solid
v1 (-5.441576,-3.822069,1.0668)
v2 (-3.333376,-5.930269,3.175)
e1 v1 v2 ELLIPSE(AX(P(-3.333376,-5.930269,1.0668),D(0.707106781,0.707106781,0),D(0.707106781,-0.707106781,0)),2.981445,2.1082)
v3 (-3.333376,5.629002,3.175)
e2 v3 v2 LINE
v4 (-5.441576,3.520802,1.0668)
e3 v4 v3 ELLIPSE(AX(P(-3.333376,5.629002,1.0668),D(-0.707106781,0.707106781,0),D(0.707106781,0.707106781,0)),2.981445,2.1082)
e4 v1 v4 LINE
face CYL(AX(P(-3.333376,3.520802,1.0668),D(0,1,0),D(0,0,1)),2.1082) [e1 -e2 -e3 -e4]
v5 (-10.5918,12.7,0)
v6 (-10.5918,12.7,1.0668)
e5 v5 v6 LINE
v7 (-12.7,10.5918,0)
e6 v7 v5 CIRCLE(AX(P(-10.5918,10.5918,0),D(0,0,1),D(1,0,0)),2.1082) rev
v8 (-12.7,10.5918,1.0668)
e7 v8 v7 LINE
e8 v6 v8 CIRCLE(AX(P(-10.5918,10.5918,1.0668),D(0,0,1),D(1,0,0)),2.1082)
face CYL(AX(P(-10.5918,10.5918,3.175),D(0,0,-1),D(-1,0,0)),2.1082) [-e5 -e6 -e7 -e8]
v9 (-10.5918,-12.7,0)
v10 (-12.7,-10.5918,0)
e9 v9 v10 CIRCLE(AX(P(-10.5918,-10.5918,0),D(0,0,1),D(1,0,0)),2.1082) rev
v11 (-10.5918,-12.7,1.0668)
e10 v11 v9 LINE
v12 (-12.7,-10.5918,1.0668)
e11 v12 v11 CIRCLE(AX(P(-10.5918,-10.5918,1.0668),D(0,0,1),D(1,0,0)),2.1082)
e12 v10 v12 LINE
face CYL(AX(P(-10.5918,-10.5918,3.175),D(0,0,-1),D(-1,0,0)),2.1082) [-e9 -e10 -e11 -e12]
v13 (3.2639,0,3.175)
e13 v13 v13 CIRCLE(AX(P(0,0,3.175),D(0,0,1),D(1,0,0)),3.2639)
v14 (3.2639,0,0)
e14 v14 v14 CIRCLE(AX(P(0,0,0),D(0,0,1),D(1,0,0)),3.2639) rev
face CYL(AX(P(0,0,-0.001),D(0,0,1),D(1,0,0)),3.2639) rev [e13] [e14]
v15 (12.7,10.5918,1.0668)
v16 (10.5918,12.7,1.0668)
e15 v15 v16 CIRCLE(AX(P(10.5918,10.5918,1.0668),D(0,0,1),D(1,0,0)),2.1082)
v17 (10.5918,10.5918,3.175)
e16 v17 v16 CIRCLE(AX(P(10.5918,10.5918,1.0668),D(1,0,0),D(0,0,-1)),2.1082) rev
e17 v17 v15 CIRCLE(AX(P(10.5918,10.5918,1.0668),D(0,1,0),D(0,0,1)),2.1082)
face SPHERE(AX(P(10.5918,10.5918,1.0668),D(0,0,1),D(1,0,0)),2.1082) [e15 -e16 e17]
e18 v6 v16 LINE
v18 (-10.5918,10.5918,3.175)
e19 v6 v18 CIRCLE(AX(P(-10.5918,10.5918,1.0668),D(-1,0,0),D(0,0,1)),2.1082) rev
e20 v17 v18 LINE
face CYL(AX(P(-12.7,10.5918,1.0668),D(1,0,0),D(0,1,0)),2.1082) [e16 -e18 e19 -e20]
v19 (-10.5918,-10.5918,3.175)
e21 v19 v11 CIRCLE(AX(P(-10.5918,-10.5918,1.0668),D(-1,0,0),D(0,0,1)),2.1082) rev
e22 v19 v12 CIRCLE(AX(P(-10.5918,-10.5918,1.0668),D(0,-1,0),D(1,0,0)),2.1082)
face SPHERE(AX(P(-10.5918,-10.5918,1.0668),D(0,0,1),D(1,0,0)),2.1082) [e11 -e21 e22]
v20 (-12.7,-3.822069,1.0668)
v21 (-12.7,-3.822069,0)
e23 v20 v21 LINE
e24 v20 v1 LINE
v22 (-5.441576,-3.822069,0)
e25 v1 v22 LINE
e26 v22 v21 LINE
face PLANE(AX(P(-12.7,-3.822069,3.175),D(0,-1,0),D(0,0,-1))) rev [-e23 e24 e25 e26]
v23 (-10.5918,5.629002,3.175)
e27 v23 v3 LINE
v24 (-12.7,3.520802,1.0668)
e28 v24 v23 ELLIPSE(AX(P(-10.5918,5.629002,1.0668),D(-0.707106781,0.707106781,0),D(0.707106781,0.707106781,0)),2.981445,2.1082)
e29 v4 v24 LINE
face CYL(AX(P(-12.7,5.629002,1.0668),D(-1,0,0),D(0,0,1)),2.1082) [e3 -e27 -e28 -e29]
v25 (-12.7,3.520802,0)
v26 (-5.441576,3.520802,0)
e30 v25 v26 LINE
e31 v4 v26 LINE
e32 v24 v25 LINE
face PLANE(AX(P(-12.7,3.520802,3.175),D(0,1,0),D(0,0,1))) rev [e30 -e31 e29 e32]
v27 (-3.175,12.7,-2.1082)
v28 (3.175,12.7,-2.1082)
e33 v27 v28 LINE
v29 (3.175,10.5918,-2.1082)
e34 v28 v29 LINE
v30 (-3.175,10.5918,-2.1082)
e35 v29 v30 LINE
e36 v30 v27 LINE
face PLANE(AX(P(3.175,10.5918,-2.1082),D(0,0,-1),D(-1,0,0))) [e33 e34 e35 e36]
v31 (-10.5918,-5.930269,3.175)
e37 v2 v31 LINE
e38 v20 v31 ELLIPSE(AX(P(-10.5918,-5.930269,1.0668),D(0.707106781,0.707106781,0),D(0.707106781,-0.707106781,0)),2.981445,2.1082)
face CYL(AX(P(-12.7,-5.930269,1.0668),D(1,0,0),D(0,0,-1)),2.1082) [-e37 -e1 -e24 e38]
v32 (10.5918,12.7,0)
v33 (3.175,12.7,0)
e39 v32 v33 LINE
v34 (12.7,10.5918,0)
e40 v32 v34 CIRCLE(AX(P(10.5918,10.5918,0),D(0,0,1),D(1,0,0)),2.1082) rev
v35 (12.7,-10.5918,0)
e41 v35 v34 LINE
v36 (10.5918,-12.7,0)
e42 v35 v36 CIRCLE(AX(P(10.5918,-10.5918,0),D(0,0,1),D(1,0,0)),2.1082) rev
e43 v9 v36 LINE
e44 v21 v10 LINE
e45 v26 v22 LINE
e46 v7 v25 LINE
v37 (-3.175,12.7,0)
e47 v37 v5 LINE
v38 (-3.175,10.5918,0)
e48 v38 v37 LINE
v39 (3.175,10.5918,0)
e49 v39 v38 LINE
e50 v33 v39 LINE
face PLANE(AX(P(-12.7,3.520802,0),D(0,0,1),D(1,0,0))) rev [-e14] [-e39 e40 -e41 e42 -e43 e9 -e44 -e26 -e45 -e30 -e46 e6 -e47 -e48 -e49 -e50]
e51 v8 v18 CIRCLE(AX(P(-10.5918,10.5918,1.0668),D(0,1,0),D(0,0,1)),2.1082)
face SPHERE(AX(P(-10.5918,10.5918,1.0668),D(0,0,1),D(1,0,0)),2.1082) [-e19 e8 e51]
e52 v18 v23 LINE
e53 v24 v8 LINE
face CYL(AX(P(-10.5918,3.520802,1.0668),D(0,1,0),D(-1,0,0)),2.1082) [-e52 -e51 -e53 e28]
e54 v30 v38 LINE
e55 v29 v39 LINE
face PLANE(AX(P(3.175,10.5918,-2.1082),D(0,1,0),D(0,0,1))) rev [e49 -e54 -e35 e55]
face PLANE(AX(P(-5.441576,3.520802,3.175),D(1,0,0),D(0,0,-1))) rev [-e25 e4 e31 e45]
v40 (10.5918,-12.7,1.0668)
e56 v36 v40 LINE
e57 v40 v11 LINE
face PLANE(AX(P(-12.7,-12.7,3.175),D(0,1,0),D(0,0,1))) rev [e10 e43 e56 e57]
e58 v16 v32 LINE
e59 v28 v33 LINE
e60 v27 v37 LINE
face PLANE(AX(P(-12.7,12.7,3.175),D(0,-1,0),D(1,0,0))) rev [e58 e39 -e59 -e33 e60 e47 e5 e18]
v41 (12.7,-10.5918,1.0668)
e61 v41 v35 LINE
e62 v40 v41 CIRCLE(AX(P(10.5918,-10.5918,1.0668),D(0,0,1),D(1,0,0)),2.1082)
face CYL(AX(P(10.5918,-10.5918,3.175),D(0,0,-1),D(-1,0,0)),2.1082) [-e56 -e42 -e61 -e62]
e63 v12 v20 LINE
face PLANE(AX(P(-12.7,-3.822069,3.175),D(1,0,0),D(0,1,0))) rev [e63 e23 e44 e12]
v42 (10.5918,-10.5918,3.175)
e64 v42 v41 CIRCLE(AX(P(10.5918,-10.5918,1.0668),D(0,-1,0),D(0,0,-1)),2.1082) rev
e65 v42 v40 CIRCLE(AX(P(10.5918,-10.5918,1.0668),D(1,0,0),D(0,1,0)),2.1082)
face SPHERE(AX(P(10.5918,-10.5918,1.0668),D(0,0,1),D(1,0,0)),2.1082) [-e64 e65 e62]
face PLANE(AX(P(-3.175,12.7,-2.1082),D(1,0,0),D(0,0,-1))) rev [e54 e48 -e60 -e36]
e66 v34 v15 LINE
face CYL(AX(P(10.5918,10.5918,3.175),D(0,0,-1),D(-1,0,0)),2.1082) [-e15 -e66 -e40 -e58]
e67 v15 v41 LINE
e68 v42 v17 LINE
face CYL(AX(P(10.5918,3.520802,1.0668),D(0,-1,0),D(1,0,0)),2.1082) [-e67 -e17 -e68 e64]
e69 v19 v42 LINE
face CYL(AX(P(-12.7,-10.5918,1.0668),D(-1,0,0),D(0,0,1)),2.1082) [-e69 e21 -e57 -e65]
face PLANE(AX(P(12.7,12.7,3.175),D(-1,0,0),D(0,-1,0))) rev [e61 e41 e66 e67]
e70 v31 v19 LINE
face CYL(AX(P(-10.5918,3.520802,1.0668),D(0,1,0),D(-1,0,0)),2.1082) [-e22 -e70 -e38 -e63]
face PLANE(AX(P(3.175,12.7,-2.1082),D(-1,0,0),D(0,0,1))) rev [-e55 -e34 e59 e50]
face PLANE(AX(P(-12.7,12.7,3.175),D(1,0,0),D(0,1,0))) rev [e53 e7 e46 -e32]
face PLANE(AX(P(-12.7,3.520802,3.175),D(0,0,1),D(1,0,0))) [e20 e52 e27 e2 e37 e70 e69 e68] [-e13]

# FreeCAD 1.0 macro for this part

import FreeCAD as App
import Part
import Sketcher
from FreeCAD import Vector
Q = App.Units.Quantity


def edges_at(feature, points):
    """Names of the edges that pass closest to the given points."""
    edges = feature.Shape.Edges
    near = lambda p: min(range(len(edges)), key=lambda i: edges[i].distToShape(Part.Vertex(*p))[0])
    return sorted({f"Edge{near(p) + 1}" for p in points})

doc = App.newDocument("Part")
params = doc.addObject("Spreadsheet::Sheet", "Params")
for row, (alias, value) in enumerate([
    ("sketch1_width", "1 in"),
    ("pad1_length", "0.125 in"),
    ("fillet_radius", "0.083 in"),
    ("sketch2_diameter", "0.257 in"),
    ("sketch3_width", "0.25 in"),
    ("sketch3_height", "0.083 in"),
    ("pad2_length", "0.083 in"),
], start=1):
    params.set(f"A{row}", alias)
    params.set(f"B{row}", "=" + value)
    params.setAlias(f"B{row}", alias)

body = doc.addObject("PartDesign::Body", "Body")

sketch1 = body.newObject("Sketcher::SketchObject", "Sketch")
sketch1.AttachmentSupport = (doc.getObject("XY_Plane"), [""])
sketch1.MapMode = "FlatFace"
sketch1.addGeometry(Part.LineSegment(Vector(12.7, 12.7, 0), Vector(-12.7, 12.7, 0)), False)
sketch1.addGeometry(Part.LineSegment(Vector(-12.7, 12.7, 0), Vector(-12.7, 3.520802, 0)), False)
sketch1.addGeometry(Part.LineSegment(Vector(-12.7, 3.520802, 0), Vector(-5.441576, 3.520802, 0)), False)
sketch1.addGeometry(Part.LineSegment(Vector(-5.441576, 3.520802, 0), Vector(-5.441576, -3.822069, 0)), False)
sketch1.addGeometry(Part.LineSegment(Vector(-5.441576, -3.822069, 0), Vector(-12.7, -3.822069, 0)), False)
sketch1.addGeometry(Part.LineSegment(Vector(-12.7, -3.822069, 0), Vector(-12.7, -12.7, 0)), False)
sketch1.addGeometry(Part.LineSegment(Vector(-12.7, -12.7, 0), Vector(12.7, -12.7, 0)), False)
sketch1.addGeometry(Part.LineSegment(Vector(12.7, -12.7, 0), Vector(12.7, 12.7, 0)), False)
sketch1.addConstraint(Sketcher.Constraint("Coincident", 0, 2, 1, 1))
sketch1.addConstraint(Sketcher.Constraint("Coincident", 1, 2, 2, 1))
sketch1.addConstraint(Sketcher.Constraint("Coincident", 2, 2, 3, 1))
sketch1.addConstraint(Sketcher.Constraint("Coincident", 3, 2, 4, 1))
sketch1.addConstraint(Sketcher.Constraint("Coincident", 4, 2, 5, 1))
sketch1.addConstraint(Sketcher.Constraint("Coincident", 5, 2, 6, 1))
sketch1.addConstraint(Sketcher.Constraint("Coincident", 6, 2, 7, 1))
sketch1.addConstraint(Sketcher.Constraint("Coincident", 7, 2, 0, 1))
sketch1.addConstraint(Sketcher.Constraint("Horizontal", 0))
sketch1.addConstraint(Sketcher.Constraint("Vertical", 1))
sketch1.addConstraint(Sketcher.Constraint("Horizontal", 2))
sketch1.addConstraint(Sketcher.Constraint("Vertical", 3))
sketch1.addConstraint(Sketcher.Constraint("Horizontal", 4))
sketch1.addConstraint(Sketcher.Constraint("Vertical", 5))
sketch1.addConstraint(Sketcher.Constraint("Horizontal", 6))
sketch1.addConstraint(Sketcher.Constraint("Vertical", 7))
sketch1.addConstraint(Sketcher.Constraint("Symmetric", 0, 2, 6, 2, -1, 1))
sketch1.addConstraint(Sketcher.Constraint("Vertical", 1, 2, 4, 2))
sketch1.addConstraint(Sketcher.Constraint("Equal", 6, 7))
sketch1.addConstraint(Sketcher.Constraint("DistanceX", 0, 2, 0, 1, Q("1 in")))
sketch1.addConstraint(Sketcher.Constraint("DistanceY", 1, 2, 1, 1, 9.179198))
sketch1.addConstraint(Sketcher.Constraint("DistanceY", 3, 2, 3, 1, 7.342871))
sketch1.addConstraint(Sketcher.Constraint("DistanceX", 2, 1, 2, 2, 7.258424))
sketch1.setExpression("Constraints[19]", "Params.sketch1_width")
pad1 = body.newObject("PartDesign::Pad", "Pad")
pad1.Profile = sketch1
pad1.setExpression("Length", "Params.pad1_length")
doc.recompute()

fillet = body.newObject("PartDesign::Fillet", "Fillet")
fillet.Base = (pad1, edges_at(pad1, [
    (-5.442, -0.151, 3.175),
    (-9.071, -3.822, 3.175),
    (-12.7, 12.7, 1.587),
    (12.7, 12.7, 1.587),
    (12.7, -12.7, 1.587),
    (-12.7, -12.7, 1.587),
    (-12.7, -8.261, 3.175),
    (0, -12.7, 3.175),
    (12.7, 0, 3.175),
    (0, 12.7, 3.175),
    (-12.7, 8.11, 3.175),
    (-9.071, 3.521, 3.175),
]))
fillet.setExpression("Radius", "Params.fillet_radius")

sketch2 = body.newObject("Sketcher::SketchObject", "Sketch001")
sketch2.AttachmentSupport = (doc.getObject("XY_Plane"), [""])
sketch2.MapMode = "FlatFace"
sketch2.AttachmentOffset = App.Placement(Vector(0, 0, 0.125 * 25.4), App.Rotation())
sketch2.addGeometry(Part.Circle(Vector(0, 0, 0), Vector(0, 0, 1), 3.2639), False)
sketch2.addConstraint(Sketcher.Constraint("Coincident", 0, 3, -1, 1))
sketch2.addConstraint(Sketcher.Constraint("Diameter", 0, Q("0.257 in")))
sketch2.setExpression("Constraints[1]", "Params.sketch2_diameter")
pocket1 = body.newObject("PartDesign::Pocket", "Pocket")
pocket1.Profile = sketch2
pocket1.Type = "UpToFirst"

sketch3 = body.newObject("Sketcher::SketchObject", "Sketch002")
sketch3.AttachmentSupport = (doc.getObject("XY_Plane"), [""])
sketch3.MapMode = "FlatFace"
sketch3.addGeometry(Part.LineSegment(Vector(3.175, 12.7, 0), Vector(3.175, 10.5918, 0)), False)
sketch3.addGeometry(Part.LineSegment(Vector(3.175, 10.5918, 0), Vector(-3.175, 10.5918, 0)), False)
sketch3.addGeometry(Part.LineSegment(Vector(-3.175, 10.5918, 0), Vector(-3.175, 12.7, 0)), False)
sketch3.addGeometry(Part.LineSegment(Vector(-3.175, 12.7, 0), Vector(3.175, 12.7, 0)), False)
sketch3.addConstraint(Sketcher.Constraint("Coincident", 0, 2, 1, 1))
sketch3.addConstraint(Sketcher.Constraint("Coincident", 1, 2, 2, 1))
sketch3.addConstraint(Sketcher.Constraint("Coincident", 2, 2, 3, 1))
sketch3.addConstraint(Sketcher.Constraint("Coincident", 3, 2, 0, 1))
sketch3.addConstraint(Sketcher.Constraint("Vertical", 0))
sketch3.addConstraint(Sketcher.Constraint("Horizontal", 1))
sketch3.addConstraint(Sketcher.Constraint("Vertical", 2))
sketch3.addConstraint(Sketcher.Constraint("Horizontal", 3))
sketch3.addConstraint(Sketcher.Constraint("DistanceX", 1, 2, 1, 1, Q("0.25 in")))
sketch3.addConstraint(Sketcher.Constraint("DistanceY", -1, 1, 2, 2, Q("0.5 in")))
sketch3.addConstraint(Sketcher.Constraint("DistanceY", 0, 2, 0, 1, Q("0.083 in")))
sketch3.addConstraint(Sketcher.Constraint("DistanceX", -1, 1, 0, 2, Q("0.125 in")))
sketch3.setExpression("Constraints[8]", "Params.sketch3_width")
sketch3.setExpression("Constraints[10]", "Params.sketch3_height")
pad2 = body.newObject("PartDesign::Pad", "Pad001")
pad2.Profile = sketch3
pad2.setExpression("Length", "Params.pad2_length")
pad2.Reversed = True

doc.recompute()
